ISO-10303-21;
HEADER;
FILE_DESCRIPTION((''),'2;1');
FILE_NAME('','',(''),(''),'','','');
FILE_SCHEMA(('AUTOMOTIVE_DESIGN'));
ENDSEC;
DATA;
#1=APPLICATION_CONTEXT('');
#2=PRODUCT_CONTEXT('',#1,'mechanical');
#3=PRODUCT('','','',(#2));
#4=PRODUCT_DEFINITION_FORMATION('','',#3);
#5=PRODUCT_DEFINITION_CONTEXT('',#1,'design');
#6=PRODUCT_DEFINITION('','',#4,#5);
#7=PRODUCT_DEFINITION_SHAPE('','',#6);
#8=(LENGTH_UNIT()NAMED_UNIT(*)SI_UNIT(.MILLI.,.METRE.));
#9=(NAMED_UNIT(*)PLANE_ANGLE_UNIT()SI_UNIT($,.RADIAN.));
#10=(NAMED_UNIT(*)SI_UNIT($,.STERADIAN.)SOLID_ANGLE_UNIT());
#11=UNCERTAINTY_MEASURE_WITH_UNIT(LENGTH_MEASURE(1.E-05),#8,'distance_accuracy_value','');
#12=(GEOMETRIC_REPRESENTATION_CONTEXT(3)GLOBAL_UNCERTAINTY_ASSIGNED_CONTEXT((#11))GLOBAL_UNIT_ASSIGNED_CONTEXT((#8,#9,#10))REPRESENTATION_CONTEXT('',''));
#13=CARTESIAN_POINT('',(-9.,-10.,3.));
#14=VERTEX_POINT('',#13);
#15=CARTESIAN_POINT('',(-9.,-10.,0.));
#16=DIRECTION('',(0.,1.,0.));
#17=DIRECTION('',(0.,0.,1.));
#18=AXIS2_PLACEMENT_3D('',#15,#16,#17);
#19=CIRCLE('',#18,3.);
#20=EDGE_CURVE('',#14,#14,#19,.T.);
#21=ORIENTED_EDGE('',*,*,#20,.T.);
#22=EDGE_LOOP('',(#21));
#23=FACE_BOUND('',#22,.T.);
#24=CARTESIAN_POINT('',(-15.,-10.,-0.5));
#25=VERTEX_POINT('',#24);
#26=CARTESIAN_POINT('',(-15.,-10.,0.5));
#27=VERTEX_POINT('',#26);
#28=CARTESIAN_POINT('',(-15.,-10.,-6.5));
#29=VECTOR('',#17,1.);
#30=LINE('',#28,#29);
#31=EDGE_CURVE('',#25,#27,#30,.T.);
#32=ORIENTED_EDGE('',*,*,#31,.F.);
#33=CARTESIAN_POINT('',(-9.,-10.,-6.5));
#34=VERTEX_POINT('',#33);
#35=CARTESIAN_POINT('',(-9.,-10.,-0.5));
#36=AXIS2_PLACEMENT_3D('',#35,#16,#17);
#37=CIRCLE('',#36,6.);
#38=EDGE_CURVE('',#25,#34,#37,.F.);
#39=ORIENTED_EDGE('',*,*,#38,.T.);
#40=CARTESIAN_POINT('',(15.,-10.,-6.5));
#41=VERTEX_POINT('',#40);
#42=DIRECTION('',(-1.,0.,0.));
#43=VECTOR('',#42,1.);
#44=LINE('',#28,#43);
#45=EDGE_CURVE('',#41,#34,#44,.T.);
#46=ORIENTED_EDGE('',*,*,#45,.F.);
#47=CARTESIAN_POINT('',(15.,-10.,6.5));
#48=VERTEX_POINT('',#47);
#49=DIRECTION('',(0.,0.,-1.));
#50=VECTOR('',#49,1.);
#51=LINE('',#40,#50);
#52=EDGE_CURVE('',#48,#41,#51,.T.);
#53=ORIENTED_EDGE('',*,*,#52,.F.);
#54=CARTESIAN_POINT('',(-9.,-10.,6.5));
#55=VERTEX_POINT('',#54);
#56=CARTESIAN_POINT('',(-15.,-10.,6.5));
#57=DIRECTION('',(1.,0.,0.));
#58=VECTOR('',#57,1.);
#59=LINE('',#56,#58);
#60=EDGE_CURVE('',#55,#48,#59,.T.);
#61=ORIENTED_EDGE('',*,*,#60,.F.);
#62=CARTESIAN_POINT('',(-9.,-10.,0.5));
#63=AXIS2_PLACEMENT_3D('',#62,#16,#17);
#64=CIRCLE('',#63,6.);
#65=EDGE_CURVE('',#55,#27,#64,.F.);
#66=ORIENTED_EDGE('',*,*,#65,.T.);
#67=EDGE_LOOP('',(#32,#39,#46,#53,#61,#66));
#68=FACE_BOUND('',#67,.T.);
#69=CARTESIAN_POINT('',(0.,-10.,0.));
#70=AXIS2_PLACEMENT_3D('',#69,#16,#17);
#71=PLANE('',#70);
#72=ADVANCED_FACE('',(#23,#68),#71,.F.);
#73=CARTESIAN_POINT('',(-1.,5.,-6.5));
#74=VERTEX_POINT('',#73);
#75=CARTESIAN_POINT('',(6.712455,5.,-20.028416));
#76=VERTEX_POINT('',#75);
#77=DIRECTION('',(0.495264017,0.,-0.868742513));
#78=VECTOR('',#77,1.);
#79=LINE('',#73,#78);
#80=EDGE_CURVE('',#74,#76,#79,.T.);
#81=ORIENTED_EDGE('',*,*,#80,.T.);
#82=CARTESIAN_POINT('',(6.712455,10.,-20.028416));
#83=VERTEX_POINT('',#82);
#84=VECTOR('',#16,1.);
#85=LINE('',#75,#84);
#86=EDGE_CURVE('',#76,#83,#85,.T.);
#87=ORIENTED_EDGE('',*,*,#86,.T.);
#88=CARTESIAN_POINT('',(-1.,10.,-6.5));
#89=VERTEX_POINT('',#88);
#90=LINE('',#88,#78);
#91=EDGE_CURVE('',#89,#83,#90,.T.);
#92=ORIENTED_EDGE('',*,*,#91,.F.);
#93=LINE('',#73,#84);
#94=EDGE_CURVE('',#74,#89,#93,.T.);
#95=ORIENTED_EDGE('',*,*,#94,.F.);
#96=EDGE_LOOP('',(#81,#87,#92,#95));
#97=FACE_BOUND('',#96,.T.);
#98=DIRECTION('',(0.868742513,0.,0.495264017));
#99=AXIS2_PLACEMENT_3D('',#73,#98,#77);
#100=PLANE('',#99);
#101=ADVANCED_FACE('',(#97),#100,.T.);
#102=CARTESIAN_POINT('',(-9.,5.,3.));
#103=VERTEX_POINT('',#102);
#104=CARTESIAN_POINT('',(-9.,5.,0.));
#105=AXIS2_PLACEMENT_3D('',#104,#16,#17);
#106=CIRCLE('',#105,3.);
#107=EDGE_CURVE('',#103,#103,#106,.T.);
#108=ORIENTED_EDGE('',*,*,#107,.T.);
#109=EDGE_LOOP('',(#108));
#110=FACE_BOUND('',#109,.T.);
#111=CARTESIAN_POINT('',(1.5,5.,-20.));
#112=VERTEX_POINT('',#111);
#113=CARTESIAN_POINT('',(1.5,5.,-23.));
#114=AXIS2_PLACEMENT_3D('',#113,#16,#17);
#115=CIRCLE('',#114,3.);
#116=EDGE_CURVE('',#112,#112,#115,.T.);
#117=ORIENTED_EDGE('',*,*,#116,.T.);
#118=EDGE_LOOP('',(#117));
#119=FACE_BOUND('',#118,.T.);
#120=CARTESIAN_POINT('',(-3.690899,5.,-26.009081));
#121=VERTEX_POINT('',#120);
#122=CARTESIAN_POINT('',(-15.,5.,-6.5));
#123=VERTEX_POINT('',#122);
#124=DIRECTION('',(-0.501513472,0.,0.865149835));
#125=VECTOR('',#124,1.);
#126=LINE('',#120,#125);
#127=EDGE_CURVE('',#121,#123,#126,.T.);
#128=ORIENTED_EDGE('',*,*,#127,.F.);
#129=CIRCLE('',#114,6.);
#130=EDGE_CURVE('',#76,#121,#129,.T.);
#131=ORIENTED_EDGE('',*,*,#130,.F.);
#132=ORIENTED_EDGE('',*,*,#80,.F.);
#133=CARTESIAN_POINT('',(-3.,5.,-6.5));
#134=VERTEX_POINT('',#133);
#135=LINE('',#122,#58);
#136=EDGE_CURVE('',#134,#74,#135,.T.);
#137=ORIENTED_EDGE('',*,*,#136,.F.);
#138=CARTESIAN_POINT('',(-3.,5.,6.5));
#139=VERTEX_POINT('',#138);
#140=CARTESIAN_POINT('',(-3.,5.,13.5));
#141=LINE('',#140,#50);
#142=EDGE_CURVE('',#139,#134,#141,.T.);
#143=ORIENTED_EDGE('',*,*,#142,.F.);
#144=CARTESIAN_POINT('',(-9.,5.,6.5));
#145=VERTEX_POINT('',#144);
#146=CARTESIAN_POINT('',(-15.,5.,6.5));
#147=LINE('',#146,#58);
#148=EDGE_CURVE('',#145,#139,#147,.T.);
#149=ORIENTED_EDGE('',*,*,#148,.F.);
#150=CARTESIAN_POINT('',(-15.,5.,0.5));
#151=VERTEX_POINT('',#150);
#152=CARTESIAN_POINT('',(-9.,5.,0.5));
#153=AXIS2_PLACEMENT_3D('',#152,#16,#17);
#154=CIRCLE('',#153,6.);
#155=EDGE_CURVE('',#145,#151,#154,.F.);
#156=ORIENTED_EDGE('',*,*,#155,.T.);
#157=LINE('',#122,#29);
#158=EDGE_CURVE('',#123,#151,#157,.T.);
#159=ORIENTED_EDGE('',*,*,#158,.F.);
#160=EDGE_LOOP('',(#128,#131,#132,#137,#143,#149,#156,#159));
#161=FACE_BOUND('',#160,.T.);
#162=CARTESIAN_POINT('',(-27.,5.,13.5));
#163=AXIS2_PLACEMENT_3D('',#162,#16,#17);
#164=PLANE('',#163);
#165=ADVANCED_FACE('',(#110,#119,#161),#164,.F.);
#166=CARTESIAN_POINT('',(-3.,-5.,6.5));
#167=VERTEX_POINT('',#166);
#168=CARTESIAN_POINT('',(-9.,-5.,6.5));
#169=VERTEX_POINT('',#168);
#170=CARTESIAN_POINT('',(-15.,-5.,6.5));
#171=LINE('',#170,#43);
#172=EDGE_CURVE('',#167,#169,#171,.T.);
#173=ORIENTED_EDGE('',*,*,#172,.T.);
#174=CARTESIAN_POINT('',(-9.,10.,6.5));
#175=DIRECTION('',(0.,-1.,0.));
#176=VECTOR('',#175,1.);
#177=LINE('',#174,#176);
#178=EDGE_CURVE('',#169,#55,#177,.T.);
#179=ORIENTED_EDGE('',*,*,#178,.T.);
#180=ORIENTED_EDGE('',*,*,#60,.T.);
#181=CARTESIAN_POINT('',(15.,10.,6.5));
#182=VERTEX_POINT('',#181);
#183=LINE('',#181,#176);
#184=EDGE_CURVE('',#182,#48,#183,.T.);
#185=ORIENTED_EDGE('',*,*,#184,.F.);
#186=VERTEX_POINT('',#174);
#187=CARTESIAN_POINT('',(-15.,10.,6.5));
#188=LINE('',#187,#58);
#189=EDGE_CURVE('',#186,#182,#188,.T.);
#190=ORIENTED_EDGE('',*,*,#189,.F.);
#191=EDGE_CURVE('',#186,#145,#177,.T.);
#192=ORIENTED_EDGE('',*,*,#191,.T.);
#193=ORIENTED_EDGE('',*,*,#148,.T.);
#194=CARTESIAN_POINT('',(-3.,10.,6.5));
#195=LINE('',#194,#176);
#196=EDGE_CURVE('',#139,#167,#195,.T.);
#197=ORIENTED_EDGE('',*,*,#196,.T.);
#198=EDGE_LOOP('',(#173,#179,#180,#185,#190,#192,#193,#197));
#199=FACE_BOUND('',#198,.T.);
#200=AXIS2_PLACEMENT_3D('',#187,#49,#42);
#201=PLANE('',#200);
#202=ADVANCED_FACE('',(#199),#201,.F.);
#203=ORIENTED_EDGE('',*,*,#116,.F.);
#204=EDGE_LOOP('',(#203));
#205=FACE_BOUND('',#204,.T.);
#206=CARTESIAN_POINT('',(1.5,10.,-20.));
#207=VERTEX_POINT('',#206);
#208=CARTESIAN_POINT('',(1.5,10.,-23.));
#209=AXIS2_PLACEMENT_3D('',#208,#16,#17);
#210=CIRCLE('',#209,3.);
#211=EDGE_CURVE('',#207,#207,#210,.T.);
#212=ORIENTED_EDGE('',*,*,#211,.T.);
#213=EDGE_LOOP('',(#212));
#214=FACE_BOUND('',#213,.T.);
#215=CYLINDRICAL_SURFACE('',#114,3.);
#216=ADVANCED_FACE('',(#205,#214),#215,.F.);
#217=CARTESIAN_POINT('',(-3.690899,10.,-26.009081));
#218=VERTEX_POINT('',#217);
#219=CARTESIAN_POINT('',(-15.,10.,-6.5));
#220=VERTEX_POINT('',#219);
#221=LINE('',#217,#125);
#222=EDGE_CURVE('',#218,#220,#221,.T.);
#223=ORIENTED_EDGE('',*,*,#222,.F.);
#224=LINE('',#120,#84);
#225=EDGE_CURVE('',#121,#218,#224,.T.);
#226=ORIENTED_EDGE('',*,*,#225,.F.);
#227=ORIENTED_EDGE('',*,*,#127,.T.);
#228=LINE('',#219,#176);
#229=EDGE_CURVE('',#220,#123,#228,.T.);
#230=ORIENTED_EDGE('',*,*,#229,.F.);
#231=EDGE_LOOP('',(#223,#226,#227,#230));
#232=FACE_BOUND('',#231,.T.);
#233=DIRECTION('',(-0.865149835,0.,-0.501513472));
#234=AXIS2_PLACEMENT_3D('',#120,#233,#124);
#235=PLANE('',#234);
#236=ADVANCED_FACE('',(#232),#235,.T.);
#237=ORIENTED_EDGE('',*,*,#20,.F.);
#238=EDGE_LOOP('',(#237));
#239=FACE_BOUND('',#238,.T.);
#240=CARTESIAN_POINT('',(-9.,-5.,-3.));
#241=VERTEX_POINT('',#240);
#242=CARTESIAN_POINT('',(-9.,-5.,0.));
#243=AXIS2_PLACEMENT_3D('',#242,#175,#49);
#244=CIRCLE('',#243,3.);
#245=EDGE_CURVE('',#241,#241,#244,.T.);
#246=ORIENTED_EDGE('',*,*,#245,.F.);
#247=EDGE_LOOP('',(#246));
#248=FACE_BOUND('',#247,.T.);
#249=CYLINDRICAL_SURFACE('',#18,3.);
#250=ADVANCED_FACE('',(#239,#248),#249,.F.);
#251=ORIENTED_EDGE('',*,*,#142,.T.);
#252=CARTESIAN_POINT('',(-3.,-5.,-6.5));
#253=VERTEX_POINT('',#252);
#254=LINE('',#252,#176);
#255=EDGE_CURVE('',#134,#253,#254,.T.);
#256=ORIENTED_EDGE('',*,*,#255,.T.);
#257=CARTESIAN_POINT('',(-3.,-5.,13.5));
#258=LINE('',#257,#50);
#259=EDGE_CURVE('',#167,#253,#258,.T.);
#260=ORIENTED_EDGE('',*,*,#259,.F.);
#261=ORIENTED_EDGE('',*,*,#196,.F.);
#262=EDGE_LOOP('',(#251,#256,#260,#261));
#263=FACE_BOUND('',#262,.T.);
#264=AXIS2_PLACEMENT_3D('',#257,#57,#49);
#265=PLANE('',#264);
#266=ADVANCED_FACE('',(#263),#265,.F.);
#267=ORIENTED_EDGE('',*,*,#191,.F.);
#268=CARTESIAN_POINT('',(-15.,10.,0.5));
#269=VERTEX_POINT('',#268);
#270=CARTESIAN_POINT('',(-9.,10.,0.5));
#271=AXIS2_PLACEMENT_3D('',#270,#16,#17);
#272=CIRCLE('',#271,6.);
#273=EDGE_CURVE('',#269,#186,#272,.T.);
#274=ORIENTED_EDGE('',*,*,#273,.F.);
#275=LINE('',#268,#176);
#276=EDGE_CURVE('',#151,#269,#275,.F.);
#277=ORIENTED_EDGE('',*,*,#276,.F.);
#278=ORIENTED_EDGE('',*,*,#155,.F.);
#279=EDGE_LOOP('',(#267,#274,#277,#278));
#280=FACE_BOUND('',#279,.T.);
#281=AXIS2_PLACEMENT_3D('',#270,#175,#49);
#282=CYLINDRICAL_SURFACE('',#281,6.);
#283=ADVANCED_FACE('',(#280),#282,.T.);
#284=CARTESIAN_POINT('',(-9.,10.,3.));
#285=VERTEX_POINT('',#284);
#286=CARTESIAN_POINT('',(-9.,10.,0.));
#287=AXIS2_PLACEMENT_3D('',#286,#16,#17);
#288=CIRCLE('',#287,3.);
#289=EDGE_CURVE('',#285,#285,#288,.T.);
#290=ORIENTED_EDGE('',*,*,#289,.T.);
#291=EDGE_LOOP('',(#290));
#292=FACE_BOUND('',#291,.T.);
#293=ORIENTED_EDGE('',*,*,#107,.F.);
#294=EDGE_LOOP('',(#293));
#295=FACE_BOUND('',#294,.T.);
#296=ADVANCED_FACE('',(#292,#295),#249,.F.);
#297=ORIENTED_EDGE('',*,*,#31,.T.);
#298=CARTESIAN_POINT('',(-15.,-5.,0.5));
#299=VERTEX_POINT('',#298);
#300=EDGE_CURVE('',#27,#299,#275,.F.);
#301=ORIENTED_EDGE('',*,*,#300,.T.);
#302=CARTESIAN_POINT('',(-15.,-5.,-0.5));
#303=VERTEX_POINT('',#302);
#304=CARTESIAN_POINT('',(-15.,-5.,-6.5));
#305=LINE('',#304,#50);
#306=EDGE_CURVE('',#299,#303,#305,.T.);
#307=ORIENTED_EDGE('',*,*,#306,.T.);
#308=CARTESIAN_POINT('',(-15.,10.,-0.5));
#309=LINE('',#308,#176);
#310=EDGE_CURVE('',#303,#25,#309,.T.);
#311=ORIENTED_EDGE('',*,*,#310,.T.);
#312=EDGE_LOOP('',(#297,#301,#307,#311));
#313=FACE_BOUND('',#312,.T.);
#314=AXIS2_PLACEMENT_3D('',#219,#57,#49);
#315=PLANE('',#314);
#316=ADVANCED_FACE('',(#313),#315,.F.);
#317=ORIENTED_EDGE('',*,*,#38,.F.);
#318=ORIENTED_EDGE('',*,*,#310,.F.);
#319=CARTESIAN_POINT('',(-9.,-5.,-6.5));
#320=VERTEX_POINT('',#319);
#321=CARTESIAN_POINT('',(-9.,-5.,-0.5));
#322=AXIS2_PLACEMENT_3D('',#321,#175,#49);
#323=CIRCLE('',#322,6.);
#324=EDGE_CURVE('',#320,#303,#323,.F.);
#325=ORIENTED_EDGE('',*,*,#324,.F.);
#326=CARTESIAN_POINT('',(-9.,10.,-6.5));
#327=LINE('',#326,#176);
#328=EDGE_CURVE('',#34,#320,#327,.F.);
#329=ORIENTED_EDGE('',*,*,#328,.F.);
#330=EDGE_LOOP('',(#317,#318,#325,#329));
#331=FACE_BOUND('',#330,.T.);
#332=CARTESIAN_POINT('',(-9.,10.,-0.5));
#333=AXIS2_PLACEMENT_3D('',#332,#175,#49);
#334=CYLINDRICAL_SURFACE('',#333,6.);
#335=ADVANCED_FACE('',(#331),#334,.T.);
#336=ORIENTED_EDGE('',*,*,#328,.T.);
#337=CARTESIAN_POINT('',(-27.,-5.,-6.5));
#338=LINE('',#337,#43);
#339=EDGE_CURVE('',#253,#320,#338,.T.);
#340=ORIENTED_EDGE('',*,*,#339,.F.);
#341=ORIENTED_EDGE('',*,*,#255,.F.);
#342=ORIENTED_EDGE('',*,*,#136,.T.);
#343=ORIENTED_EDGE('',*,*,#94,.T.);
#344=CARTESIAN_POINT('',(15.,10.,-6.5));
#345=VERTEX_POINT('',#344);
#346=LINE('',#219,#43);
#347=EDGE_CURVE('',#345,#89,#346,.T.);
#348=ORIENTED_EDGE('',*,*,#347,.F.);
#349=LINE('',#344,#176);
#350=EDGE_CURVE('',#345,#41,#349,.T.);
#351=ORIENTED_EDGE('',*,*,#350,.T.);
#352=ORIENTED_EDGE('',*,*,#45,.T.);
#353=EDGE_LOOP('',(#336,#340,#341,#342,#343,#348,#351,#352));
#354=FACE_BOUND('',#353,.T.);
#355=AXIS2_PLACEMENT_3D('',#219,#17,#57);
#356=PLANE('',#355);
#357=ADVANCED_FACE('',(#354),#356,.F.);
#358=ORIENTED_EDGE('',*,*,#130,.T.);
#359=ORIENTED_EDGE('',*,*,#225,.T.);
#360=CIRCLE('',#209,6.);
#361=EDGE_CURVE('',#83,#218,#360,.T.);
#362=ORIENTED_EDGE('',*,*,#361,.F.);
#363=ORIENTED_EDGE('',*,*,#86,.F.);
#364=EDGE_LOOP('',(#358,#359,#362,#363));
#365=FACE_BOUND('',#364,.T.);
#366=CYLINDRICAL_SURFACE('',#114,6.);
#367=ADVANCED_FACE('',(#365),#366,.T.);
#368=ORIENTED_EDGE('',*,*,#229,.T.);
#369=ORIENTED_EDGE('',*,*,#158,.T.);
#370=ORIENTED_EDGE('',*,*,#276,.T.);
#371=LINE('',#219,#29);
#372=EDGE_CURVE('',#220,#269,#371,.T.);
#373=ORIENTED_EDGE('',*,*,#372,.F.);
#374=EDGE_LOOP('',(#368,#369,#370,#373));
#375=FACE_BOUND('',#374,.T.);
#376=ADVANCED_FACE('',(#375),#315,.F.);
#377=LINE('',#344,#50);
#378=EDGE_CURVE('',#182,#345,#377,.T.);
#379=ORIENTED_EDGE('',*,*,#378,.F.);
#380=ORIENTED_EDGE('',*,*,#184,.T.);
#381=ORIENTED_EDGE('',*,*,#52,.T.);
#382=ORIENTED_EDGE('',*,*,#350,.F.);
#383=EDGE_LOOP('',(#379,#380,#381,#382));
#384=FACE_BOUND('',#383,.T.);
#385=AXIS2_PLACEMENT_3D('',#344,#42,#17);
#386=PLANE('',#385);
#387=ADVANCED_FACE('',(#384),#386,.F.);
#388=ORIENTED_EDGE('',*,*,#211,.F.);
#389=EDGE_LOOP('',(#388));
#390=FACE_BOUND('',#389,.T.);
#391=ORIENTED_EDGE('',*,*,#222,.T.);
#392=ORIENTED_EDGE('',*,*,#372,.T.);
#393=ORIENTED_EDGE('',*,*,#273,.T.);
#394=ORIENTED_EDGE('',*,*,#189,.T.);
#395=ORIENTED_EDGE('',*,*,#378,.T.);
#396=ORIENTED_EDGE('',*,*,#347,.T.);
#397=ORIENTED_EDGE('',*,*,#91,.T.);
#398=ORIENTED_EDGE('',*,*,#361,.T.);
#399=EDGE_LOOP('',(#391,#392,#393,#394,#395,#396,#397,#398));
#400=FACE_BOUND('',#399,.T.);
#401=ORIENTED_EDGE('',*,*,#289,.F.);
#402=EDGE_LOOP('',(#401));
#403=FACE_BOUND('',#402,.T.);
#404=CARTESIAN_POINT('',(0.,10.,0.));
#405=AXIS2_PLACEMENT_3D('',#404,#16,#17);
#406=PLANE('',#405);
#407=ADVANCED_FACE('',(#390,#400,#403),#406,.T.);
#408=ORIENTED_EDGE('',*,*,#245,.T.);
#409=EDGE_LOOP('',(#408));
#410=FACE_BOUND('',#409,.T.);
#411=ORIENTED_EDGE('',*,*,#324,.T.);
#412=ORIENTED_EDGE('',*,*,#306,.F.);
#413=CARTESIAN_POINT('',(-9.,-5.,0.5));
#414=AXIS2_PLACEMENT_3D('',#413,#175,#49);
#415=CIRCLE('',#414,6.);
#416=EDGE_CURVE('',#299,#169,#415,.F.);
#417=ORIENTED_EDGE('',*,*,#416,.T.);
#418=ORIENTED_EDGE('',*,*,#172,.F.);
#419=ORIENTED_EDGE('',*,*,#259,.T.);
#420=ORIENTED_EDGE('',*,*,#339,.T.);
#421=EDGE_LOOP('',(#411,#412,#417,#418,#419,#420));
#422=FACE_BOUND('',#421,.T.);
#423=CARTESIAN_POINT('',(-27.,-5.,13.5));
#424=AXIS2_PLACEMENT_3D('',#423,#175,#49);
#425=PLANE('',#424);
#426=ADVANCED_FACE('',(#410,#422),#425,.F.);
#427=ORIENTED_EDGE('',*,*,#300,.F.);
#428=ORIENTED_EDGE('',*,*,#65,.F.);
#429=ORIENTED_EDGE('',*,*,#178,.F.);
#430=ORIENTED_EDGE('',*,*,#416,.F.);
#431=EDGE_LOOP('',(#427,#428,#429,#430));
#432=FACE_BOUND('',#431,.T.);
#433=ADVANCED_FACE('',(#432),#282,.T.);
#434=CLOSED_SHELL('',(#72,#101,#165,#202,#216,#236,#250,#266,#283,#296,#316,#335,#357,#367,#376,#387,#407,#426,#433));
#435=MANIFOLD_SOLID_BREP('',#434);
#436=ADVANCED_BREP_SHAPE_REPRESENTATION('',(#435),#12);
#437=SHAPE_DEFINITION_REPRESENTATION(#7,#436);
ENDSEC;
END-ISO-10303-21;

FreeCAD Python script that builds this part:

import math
import FreeCAD as App
import Part
import Sketcher
from FreeCAD import Vector
Q = App.Units.Quantity


def edges_at(feature, points):
    """Names of the edges that pass closest to the given points."""
    edges = feature.Shape.Edges
    near = lambda p: min(range(len(edges)), key=lambda i: edges[i].distToShape(Part.Vertex(*p))[0])
    return sorted({f"Edge{near(p) + 1}" for p in points})


def add_polygon(sketch, points):
    """Adds a closed chain of lines whose ends are joined by coincident constraints."""
    first, n = sketch.GeometryCount, len(points)
    for a, b in zip(points, points[1:] + points[:1]):
        sketch.addGeometry(Part.LineSegment(App.Vector(*a, 0), App.Vector(*b, 0)), False)
    for i in range(n):
        sketch.addConstraint(Sketcher.Constraint("Coincident", first + i, 2, first + (i + 1) % n, 1))

doc = App.newDocument("Part")
params = doc.addObject("Spreadsheet::Sheet", "Params")
for row, (alias, value) in enumerate([
    ("sketch1_width", "30 mm"),
    ("sketch1_height", "13 mm"),
    ("pad1_length", "20 mm"),
    ("sketch2_width", "24 mm"),
    ("sketch2_height", "10 mm"),
    ("pocket1_length", "20 mm"),
    ("sketch3_diameter", "6 mm"),
    ("sketch3_radius", "6 mm"),
    ("sketch3_width", "14 mm"),
    ("pad2_length", "5 mm"),
    ("sketch4_diameter", "6 mm"),
    ("fillet_radius", "6 mm"),
], start=1):
    params.set(f"A{row}", alias)
    params.set(f"B{row}", "=" + value)
    params.setAlias(f"B{row}", alias)

body = doc.addObject("PartDesign::Body", "Body")

# Sketch on XZ plane
sketch1 = body.newObject("Sketcher::SketchObject", "Sketch")
sketch1.AttachmentSupport = (doc.getObject("XZ_Plane"), [""])
sketch1.MapMode = "FlatFace"
add_polygon(sketch1, [(-15, -6), (-15, 6), (15, 6), (15, -6)])  # lines 0-3
sketch1.addConstraint([
    Sketcher.Constraint("Vertical", 0),
    Sketcher.Constraint("Horizontal", 1),
    Sketcher.Constraint("Vertical", 2),
    Sketcher.Constraint("Horizontal", 3),
    Sketcher.Constraint("Symmetric", 0, 2, 2, 2, -1, 1),
    Sketcher.Constraint("DistanceX", 1, 1, 1, 2, Q("30 mm")),
    Sketcher.Constraint("DistanceY", 0, 1, 0, 2, Q("13 mm")),
])
sketch1.setExpression("Constraints[9]", "Params.sketch1_width")
sketch1.setExpression("Constraints[10]", "Params.sketch1_height")
pad1 = body.newObject("PartDesign::Pad", "Pad")
pad1.Profile = sketch1
pad1.setExpression("Length", "Params.pad1_length")
pad1.Midplane = True

# Sketch on XY plane
sketch2 = body.newObject("Sketcher::SketchObject", "Sketch001")
sketch2.AttachmentSupport = (doc.getObject("XY_Plane"), [""])
sketch2.MapMode = "FlatFace"
sketch2.AttachmentOffset = App.Placement(Vector(0, 0, -6.5), App.Rotation())
add_polygon(sketch2, [(-3, 5), (-3, -5), (-27, -5), (-27, 5)])  # lines 0-3
sketch2.addConstraint([
    Sketcher.Constraint("Vertical", 0),
    Sketcher.Constraint("Horizontal", 1),
    Sketcher.Constraint("Vertical", 2),
    Sketcher.Constraint("Horizontal", 3),
    Sketcher.Constraint("DistanceX", 1, 2, 1, 1, Q("24 mm")),
    Sketcher.Constraint("DistanceY", 0, 2, 0, 1, Q("10 mm")),
    Sketcher.Constraint("DistanceX", 0, 2, -1, 1, Q("3 mm")),
    Sketcher.Constraint("DistanceY", 0, 2, -1, 1, Q("5 mm")),
])
sketch2.setExpression("Constraints[8]", "Params.sketch2_width")
sketch2.setExpression("Constraints[9]", "Params.sketch2_height")
pocket1 = body.newObject("PartDesign::Pocket", "Pocket")
pocket1.Profile = sketch2
pocket1.setExpression("Length", "Params.pocket1_length")
pocket1.Reversed = True

# Sketch on XZ plane
sketch3 = body.newObject("Sketcher::SketchObject", "Sketch002")
sketch3.AttachmentSupport = (doc.getObject("XZ_Plane"), [""])
sketch3.MapMode = "FlatFace"
sketch3.AttachmentOffset = App.Placement(Vector(0, 0, -10), App.Rotation())
sketch3.addGeometry([
    Part.LineSegment(Vector(-3.7, -26, 0), Vector(-15, -6.5, 0)),  # 0
    Part.LineSegment(Vector(-15, -6.5, 0), Vector(-1, -6.5, 0)),  # 1
    Part.LineSegment(Vector(-1, -6.5, 0), Vector(6.7, -20, 0)),  # 2
    Part.ArcOfCircle(Part.Circle(Vector(1.5, -23, 0), Vector(0, 0, 1), 6), math.radians(-150), math.radians(30)),  # 3
    Part.Circle(Vector(1.5, -23, 0), Vector(0, 0, 1), 3),  # 4
], False)
sketch3.addConstraint([
    Sketcher.Constraint("Coincident", 0, 2, 1, 1),
    Sketcher.Constraint("Coincident", 1, 2, 2, 1),
    Sketcher.Constraint("Tangent", 2, 2, 3, 2),
    Sketcher.Constraint("Tangent", 3, 1, 0, 1),
    Sketcher.Constraint("Horizontal", 1),
    Sketcher.Constraint("Coincident", 4, 3, 3, 3),
    Sketcher.Constraint("Diameter", 4, Q("6 mm")),
    Sketcher.Constraint("Radius", 3, Q("6 mm")),
    Sketcher.Constraint("DistanceX", 1, 1, 1, 2, Q("14 mm")),
    Sketcher.Constraint("DistanceY", 3, 3, -1, 1, Q("23 mm")),
    Sketcher.Constraint("DistanceX", 0, 2, -1, 1, Q("15 mm")),
    Sketcher.Constraint("DistanceX", -1, 1, 3, 3, Q("1.5 mm")),
    Sketcher.Constraint("DistanceY", 0, 2, -1, 1, Q("6.5 mm")),
])
sketch3.setExpression("Constraints[6]", "Params.sketch3_diameter")
sketch3.setExpression("Constraints[7]", "Params.sketch3_radius")
sketch3.setExpression("Constraints[8]", "Params.sketch3_width")
pad2 = body.newObject("PartDesign::Pad", "Pad001")
pad2.Profile = sketch3
pad2.setExpression("Length", "Params.pad2_length")

# Sketch on XZ plane
sketch4 = body.newObject("Sketcher::SketchObject", "Sketch003")
sketch4.AttachmentSupport = (doc.getObject("XZ_Plane"), [""])
sketch4.MapMode = "FlatFace"
sketch4.AttachmentOffset = App.Placement(Vector(0, 0, -10), App.Rotation())
sketch4.addGeometry(Part.Circle(Vector(-9, 0, 0), Vector(0, 0, 1), 3), False)
sketch4.addConstraint([
    Sketcher.Constraint("PointOnObject", 0, 3, -1),
    Sketcher.Constraint("Diameter", 0, Q("6 mm")),
    Sketcher.Constraint("DistanceX", 0, 3, -1, 1, Q("9 mm")),
])
sketch4.setExpression("Constraints[1]", "Params.sketch4_diameter")
pocket2 = body.newObject("PartDesign::Pocket", "Pocket001")
pocket2.Profile = sketch4
pocket2.Type = "ThroughAll"
pocket2.Reversed = True
doc.recompute()

fillet = body.newObject("PartDesign::Fillet", "Fillet")
fillet.Base = (pocket2, edges_at(pocket2, [(-15, -7.5, 6.5), (-15, -7.5, -6.5), (-15, 7.5, 6.5)]))
fillet.setExpression("Radius", "Params.fillet_radius")

doc.recompute()
